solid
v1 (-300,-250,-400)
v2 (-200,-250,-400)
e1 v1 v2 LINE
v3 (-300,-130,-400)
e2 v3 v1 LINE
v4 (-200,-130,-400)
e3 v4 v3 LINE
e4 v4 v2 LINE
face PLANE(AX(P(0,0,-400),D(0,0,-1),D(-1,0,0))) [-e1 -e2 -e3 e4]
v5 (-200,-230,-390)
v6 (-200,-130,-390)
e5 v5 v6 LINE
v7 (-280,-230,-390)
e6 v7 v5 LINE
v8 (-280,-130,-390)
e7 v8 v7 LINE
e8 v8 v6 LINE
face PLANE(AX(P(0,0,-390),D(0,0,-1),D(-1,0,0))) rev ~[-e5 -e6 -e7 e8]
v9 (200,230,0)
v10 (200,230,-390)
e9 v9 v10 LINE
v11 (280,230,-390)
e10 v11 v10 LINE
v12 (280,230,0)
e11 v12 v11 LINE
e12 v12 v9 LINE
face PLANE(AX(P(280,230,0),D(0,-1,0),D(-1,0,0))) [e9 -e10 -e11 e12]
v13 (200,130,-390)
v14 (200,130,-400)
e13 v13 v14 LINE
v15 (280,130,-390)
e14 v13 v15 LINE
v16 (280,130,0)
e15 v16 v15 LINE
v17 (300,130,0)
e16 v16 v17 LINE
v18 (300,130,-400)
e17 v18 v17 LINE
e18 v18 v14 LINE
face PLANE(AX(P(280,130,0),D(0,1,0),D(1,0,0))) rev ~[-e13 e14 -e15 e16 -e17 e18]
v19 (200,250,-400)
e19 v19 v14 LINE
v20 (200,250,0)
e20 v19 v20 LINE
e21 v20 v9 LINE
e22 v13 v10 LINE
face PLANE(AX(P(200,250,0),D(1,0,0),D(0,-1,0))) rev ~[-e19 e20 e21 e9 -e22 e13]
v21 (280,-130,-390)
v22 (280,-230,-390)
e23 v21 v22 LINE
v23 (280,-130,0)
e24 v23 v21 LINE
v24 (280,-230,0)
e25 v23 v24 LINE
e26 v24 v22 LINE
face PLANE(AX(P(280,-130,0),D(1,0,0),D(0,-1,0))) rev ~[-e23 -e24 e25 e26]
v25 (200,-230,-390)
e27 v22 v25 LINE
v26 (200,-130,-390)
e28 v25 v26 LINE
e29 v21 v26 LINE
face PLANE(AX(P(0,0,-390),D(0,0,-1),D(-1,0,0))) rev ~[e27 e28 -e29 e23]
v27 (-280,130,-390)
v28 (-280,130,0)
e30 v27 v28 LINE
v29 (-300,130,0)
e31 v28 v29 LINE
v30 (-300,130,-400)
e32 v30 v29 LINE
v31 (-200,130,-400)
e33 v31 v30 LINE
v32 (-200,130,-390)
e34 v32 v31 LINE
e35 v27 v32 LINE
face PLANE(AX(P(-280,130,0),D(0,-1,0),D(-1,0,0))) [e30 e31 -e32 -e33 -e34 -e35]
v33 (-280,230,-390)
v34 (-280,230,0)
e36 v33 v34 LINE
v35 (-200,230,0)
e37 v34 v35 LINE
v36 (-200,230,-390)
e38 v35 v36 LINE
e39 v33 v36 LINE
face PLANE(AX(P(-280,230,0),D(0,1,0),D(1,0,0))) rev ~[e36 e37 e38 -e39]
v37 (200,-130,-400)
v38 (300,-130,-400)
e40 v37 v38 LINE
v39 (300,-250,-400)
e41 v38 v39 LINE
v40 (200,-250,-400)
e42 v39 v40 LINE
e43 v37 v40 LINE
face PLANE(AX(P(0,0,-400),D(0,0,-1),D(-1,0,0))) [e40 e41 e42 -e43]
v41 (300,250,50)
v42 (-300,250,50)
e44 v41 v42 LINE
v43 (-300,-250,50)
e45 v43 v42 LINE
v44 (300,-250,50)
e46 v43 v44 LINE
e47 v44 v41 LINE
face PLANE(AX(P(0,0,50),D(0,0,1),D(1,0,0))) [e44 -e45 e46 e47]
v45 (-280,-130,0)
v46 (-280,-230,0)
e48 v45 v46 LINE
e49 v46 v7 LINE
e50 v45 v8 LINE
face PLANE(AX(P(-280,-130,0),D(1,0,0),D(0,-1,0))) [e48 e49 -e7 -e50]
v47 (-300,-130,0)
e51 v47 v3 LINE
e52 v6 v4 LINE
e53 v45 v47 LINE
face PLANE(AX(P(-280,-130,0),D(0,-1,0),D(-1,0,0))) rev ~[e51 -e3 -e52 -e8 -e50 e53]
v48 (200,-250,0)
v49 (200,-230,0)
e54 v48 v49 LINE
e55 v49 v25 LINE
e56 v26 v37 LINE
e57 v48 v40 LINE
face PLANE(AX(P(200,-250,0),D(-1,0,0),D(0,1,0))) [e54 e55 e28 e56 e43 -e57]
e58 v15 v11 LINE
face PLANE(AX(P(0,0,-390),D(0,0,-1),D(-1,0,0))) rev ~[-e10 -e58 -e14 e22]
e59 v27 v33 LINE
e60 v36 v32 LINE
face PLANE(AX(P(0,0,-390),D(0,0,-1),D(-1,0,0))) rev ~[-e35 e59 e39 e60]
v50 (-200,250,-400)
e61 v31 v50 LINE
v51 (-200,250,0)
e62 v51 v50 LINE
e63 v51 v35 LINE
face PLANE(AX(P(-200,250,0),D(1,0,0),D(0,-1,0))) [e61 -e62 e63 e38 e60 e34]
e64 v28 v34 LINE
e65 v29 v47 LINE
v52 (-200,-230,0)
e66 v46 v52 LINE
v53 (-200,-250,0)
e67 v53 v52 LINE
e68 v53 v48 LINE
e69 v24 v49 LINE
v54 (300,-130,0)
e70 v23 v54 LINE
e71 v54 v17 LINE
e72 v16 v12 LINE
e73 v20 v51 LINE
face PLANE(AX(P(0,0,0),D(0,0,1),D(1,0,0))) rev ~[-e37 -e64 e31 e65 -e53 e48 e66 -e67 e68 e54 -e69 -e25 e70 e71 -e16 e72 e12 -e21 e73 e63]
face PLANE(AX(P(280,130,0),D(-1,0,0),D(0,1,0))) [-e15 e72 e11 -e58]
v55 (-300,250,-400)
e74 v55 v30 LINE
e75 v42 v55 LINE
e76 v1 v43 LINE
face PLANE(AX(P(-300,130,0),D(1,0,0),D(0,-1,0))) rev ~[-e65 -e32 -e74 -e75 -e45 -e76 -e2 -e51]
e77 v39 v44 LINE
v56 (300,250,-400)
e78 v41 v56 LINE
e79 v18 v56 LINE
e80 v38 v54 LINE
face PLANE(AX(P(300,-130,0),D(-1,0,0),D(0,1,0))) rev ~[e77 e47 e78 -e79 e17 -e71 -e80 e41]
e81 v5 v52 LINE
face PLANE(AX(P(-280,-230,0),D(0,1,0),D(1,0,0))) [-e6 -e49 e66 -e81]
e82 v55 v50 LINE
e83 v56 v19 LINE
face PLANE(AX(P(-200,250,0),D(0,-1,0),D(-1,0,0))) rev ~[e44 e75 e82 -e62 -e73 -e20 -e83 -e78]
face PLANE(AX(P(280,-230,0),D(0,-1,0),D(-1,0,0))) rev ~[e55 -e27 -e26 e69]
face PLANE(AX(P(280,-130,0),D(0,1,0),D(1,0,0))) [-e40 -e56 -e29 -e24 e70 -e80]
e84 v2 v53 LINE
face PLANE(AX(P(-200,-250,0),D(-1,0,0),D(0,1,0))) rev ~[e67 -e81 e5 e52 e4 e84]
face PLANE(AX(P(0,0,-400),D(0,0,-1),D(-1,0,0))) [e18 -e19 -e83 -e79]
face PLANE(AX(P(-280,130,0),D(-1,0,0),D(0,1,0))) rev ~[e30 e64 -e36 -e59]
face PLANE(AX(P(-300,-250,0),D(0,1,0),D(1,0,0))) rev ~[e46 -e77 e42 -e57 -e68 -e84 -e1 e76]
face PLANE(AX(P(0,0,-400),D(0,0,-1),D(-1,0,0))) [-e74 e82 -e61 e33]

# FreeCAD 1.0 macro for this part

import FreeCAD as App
import Part
import Sketcher

V = App.Vector
Q = App.Units.Quantity


def add_polygon(sketch, points):
    """Adds a closed chain of lines whose ends are joined by coincident constraints."""
    first, n = sketch.GeometryCount, len(points)
    for a, b in zip(points, points[1:] + points[:1]):
        sketch.addGeometry(Part.LineSegment(App.Vector(*a, 0), App.Vector(*b, 0)), False)
    for i in range(n):
        sketch.addConstraint(Sketcher.Constraint("Coincident", first + i, 2, first + (i + 1) % n, 1))

doc = App.newDocument("Part")
body = doc.addObject("PartDesign::Body", "Body")

sketch1 = doc.addObject("Sketcher::SketchObject", "Sketch")
body.addObject(sketch1)
sketch1.AttachmentSupport = (doc.XY_Plane, [""])
sketch1.MapMode = "FlatFace"
add_polygon(sketch1, [(-200, -230), (-200, -250), (200, -250), (200, -230), (280, -230), (280, -130), (300, -130), (300, 130), (280, 130), (280, 230), (200, 230), (200, 250), (-200, 250), (-200, 230), (-280, 230), (-280, 130), (-300, 130), (-300, -130), (-280, -130), (-280, -230)])
sketch1.addConstraint(Sketcher.Constraint("Vertical", 0))
sketch1.addConstraint(Sketcher.Constraint("Horizontal", 1))
sketch1.addConstraint(Sketcher.Constraint("Vertical", 2))
sketch1.addConstraint(Sketcher.Constraint("Horizontal", 3))
sketch1.addConstraint(Sketcher.Constraint("Vertical", 4))
sketch1.addConstraint(Sketcher.Constraint("Horizontal", 5))
sketch1.addConstraint(Sketcher.Constraint("Vertical", 6))
sketch1.addConstraint(Sketcher.Constraint("Horizontal", 7))
sketch1.addConstraint(Sketcher.Constraint("Vertical", 8))
sketch1.addConstraint(Sketcher.Constraint("Horizontal", 9))
sketch1.addConstraint(Sketcher.Constraint("Vertical", 10))
sketch1.addConstraint(Sketcher.Constraint("Horizontal", 11))
sketch1.addConstraint(Sketcher.Constraint("Vertical", 12))
sketch1.addConstraint(Sketcher.Constraint("Horizontal", 13))
sketch1.addConstraint(Sketcher.Constraint("Vertical", 14))
sketch1.addConstraint(Sketcher.Constraint("Horizontal", 15))
sketch1.addConstraint(Sketcher.Constraint("Vertical", 16))
sketch1.addConstraint(Sketcher.Constraint("Horizontal", 17))
sketch1.addConstraint(Sketcher.Constraint("Vertical", 18))
sketch1.addConstraint(Sketcher.Constraint("Horizontal", 19))
sketch1.addConstraint(Sketcher.Constraint("Symmetric", 0, 2, 10, 2, -1, 1))
sketch1.addConstraint(Sketcher.Constraint("Symmetric", 2, 2, 12, 2, -1, 1))
sketch1.addConstraint(Sketcher.Constraint("Symmetric", 4, 2, 14, 2, -1, 1))
sketch1.addConstraint(Sketcher.Constraint("Symmetric", 6, 2, 16, 2, -1, 1))
sketch1.addConstraint(Sketcher.Constraint("Symmetric", 8, 2, 18, 2, -1, 1))
sketch1.addConstraint(Sketcher.Constraint("Symmetric", 9, 2, 12, 2, -2))
sketch1.addConstraint(Sketcher.Constraint("Symmetric", 7, 2, 14, 2, -2))
sketch1.addConstraint(Sketcher.Constraint("Equal", 17, 0))
sketch1.addConstraint(Sketcher.Constraint("DistanceX", 5, 1, 5, 2, Q("20 mm")))
sketch1.addConstraint(Sketcher.Constraint("DistanceY", 4, 1, 4, 2, Q("100 mm")))
sketch1.addConstraint(Sketcher.Constraint("DistanceX", 2, 2, 5, 2, Q("100 mm")))
sketch1.addConstraint(Sketcher.Constraint("DistanceX", 0, 2, 5, 2, Q("500 mm")))
sketch1.addConstraint(Sketcher.Constraint("DistanceY", 0, 2, 11, 2, Q("500 mm")))
pad1 = doc.addObject("PartDesign::Pad", "Pad")
body.addObject(pad1)
pad1.Profile = sketch1
pad1.Length = 50

sketch2 = doc.addObject("Sketcher::SketchObject", "Sketch001")
body.addObject(sketch2)
sketch2.AttachmentSupport = (doc.XY_Plane, [""])
sketch2.MapMode = "FlatFace"
add_polygon(sketch2, [(-300, -130), (-300, -250), (-200, -250), (-200, -230), (-280, -230), (-280, -130)])
add_polygon(sketch2, [(200, -230), (200, -250), (300, -250), (300, -130), (280, -130), (280, -230)])
add_polygon(sketch2, [(-300, 250), (-300, 130), (-280, 130), (-280, 230), (-200, 230), (-200, 250)])
add_polygon(sketch2, [(280, 130), (300, 130), (300, 250), (200, 250), (200, 230), (280, 230)])
sketch2.addConstraint(Sketcher.Constraint("Vertical", 0))
sketch2.addConstraint(Sketcher.Constraint("Horizontal", 1))
sketch2.addConstraint(Sketcher.Constraint("Vertical", 2))
sketch2.addConstraint(Sketcher.Constraint("Horizontal", 3))
sketch2.addConstraint(Sketcher.Constraint("Vertical", 4))
sketch2.addConstraint(Sketcher.Constraint("Horizontal", 5))
sketch2.addConstraint(Sketcher.Constraint("Vertical", 6))
sketch2.addConstraint(Sketcher.Constraint("Horizontal", 7))
sketch2.addConstraint(Sketcher.Constraint("Vertical", 8))
sketch2.addConstraint(Sketcher.Constraint("Horizontal", 9))
sketch2.addConstraint(Sketcher.Constraint("Vertical", 10))
sketch2.addConstraint(Sketcher.Constraint("Horizontal", 11))
sketch2.addConstraint(Sketcher.Constraint("Vertical", 12))
sketch2.addConstraint(Sketcher.Constraint("Horizontal", 13))
sketch2.addConstraint(Sketcher.Constraint("Vertical", 14))
sketch2.addConstraint(Sketcher.Constraint("Horizontal", 15))
sketch2.addConstraint(Sketcher.Constraint("Vertical", 16))
sketch2.addConstraint(Sketcher.Constraint("Horizontal", 17))
sketch2.addConstraint(Sketcher.Constraint("Horizontal", 18))
sketch2.addConstraint(Sketcher.Constraint("Vertical", 19))
sketch2.addConstraint(Sketcher.Constraint("Horizontal", 20))
sketch2.addConstraint(Sketcher.Constraint("Vertical", 21))
sketch2.addConstraint(Sketcher.Constraint("Horizontal", 22))
sketch2.addConstraint(Sketcher.Constraint("Vertical", 23))
sketch2.addConstraint(Sketcher.Constraint("Symmetric", 8, 2, 12, 2, -1, 1))
sketch2.addConstraint(Sketcher.Constraint("Symmetric", 10, 2, 14, 2, -1, 1))
sketch2.addConstraint(Sketcher.Constraint("Symmetric", 6, 2, 16, 2, -1, 1))
sketch2.addConstraint(Sketcher.Constraint("Symmetric", 5, 2, 18, 2, -1, 1))
sketch2.addConstraint(Sketcher.Constraint("Symmetric", 1, 2, 20, 2, -1, 1))
sketch2.addConstraint(Sketcher.Constraint("Symmetric", 3, 2, 22, 2, -1, 1))
sketch2.addConstraint(Sketcher.Constraint("Symmetric", 1, 2, 6, 2, -2))
sketch2.addConstraint(Sketcher.Constraint("Symmetric", 5, 2, 8, 2, -2))
sketch2.addConstraint(Sketcher.Constraint("Symmetric", 3, 2, 10, 2, -2))
sketch2.addConstraint(Sketcher.Constraint("Equal", 18, 2))
sketch2.addConstraint(Sketcher.Constraint("Equal", 20, 4))
sketch2.addConstraint(Sketcher.Constraint("DistanceX", 1, 1, 1, 2, Q("100 mm")))
sketch2.addConstraint(Sketcher.Constraint("DistanceX", 5, 2, 5, 1, Q("20 mm")))
sketch2.addConstraint(Sketcher.Constraint("DistanceX", 0, 2, 6, 2, Q("500 mm")))
sketch2.addConstraint(Sketcher.Constraint("DistanceY", 0, 2, -1, 1, Q("250 mm")))
pad2 = doc.addObject("PartDesign::Pad", "Pad001")
body.addObject(pad2)
pad2.Profile = sketch2
pad2.Type = "TwoLengths"
pad2.Length = 50
pad2.Length2 = 390

sketch3 = doc.addObject("Sketcher::SketchObject", "Sketch002")
body.addObject(sketch3)
sketch3.AttachmentSupport = (doc.XY_Plane, [""])
sketch3.MapMode = "FlatFace"
sketch3.AttachmentOffset = App.Placement(V(0, 0, -390), App.Rotation())
add_polygon(sketch3, [(-200, 250), (-200, 130), (-300, 130), (-300, 250)])
add_polygon(sketch3, [(-300, -250), (-300, -130), (-200, -130), (-200, -250)])
add_polygon(sketch3, [(200, 250), (300, 250), (300, 130), (200, 130)])
add_polygon(sketch3, [(300, -250), (200, -250), (200, -130), (300, -130)])
sketch3.addConstraint(Sketcher.Constraint("Vertical", 0))
sketch3.addConstraint(Sketcher.Constraint("Horizontal", 1))
sketch3.addConstraint(Sketcher.Constraint("Vertical", 2))
sketch3.addConstraint(Sketcher.Constraint("Horizontal", 3))
sketch3.addConstraint(Sketcher.Constraint("Vertical", 4))
sketch3.addConstraint(Sketcher.Constraint("Horizontal", 5))
sketch3.addConstraint(Sketcher.Constraint("Vertical", 6))
sketch3.addConstraint(Sketcher.Constraint("Horizontal", 7))
sketch3.addConstraint(Sketcher.Constraint("Horizontal", 8))
sketch3.addConstraint(Sketcher.Constraint("Vertical", 9))
sketch3.addConstraint(Sketcher.Constraint("Horizontal", 10))
sketch3.addConstraint(Sketcher.Constraint("Vertical", 11))
sketch3.addConstraint(Sketcher.Constraint("Horizontal", 12))
sketch3.addConstraint(Sketcher.Constraint("Vertical", 13))
sketch3.addConstraint(Sketcher.Constraint("Horizontal", 14))
sketch3.addConstraint(Sketcher.Constraint("Vertical", 15))
sketch3.addConstraint(Sketcher.Constraint("Symmetric", 7, 2, 8, 2, -1, 1))
sketch3.addConstraint(Sketcher.Constraint("Symmetric", 5, 2, 10, 2, -1, 1))
sketch3.addConstraint(Sketcher.Constraint("Symmetric", 3, 2, 12, 2, -1, 1))
sketch3.addConstraint(Sketcher.Constraint("Symmetric", 1, 2, 14, 2, -1, 1))
sketch3.addConstraint(Sketcher.Constraint("Symmetric", 2, 2, 8, 2, -2))
sketch3.addConstraint(Sketcher.Constraint("Symmetric", 0, 2, 10, 2, -2))
sketch3.addConstraint(Sketcher.Constraint("DistanceX", 1, 2, 1, 1, Q("100 mm")))
sketch3.addConstraint(Sketcher.Constraint("DistanceY", 0, 2, 0, 1, Q("120 mm")))
sketch3.addConstraint(Sketcher.Constraint("DistanceX", 0, 2, -1, 1, Q("200 mm")))
sketch3.addConstraint(Sketcher.Constraint("DistanceY", -1, 1, 0, 2, Q("130 mm")))
pad3 = doc.addObject("PartDesign::Pad", "Pad002")
body.addObject(pad3)
pad3.Profile = sketch3
pad3.Length = 10
pad3.Reversed = True

doc.recompute()
